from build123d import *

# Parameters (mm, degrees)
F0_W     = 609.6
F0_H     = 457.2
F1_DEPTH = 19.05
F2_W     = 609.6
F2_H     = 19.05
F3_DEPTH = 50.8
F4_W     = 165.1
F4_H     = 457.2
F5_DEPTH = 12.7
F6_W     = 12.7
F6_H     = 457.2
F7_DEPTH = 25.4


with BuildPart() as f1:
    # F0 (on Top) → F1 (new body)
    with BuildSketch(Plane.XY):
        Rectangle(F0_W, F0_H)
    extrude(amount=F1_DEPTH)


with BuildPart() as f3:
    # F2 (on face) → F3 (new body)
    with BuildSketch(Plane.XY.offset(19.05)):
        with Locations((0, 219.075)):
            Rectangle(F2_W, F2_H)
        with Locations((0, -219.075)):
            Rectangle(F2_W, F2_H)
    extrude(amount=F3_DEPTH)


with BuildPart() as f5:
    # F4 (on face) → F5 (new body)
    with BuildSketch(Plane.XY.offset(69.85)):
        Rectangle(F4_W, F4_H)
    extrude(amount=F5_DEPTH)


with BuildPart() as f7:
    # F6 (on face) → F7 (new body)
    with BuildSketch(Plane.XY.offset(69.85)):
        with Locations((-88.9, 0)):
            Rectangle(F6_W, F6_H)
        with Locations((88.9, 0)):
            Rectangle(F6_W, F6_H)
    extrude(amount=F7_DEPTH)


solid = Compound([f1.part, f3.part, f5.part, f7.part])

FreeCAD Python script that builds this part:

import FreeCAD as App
import Part
import Sketcher

V = App.Vector
Q = App.Units.Quantity

doc = App.newDocument("Part")
body = doc.addObject("PartDesign::Body", "Body")

# Sketch on XY plane
sketch1 = body.newObject("Sketcher::SketchObject", "Sketch")
sketch1.AttachmentSupport = (doc.getObject("XY_Plane"), [""])
sketch1.MapMode = "FlatFace"
sketch1.addGeometry([
    Part.LineSegment(V(-305, 229, 0), V(-305, -229, 0)),
    Part.LineSegment(V(-305, -229, 0), V(305, -229, 0)),
    Part.LineSegment(V(305, -229, 0), V(305, 229, 0)),
    Part.LineSegment(V(305, 229, 0), V(-305, 229, 0)),
], False)
sketch1.addConstraint([
    Sketcher.Constraint("Coincident", 0, 2, 1, 1),
    Sketcher.Constraint("Coincident", 1, 2, 2, 1),
    Sketcher.Constraint("Coincident", 2, 2, 3, 1),
    Sketcher.Constraint("Coincident", 3, 2, 0, 1),
    Sketcher.Constraint("Vertical", 0),
    Sketcher.Constraint("Horizontal", 1),
    Sketcher.Constraint("Vertical", 2),
    Sketcher.Constraint("Horizontal", 3),
    Sketcher.Constraint("Symmetric", 0, 2, 2, 2, -1, 1),
    Sketcher.Constraint("DistanceX", 1, 1, 1, 2, Q("24 in")),
    Sketcher.Constraint("DistanceY", 0, 2, 0, 1, Q("18 in")),
])
pad1 = body.newObject("PartDesign::Pad", "Pad")
pad1.Profile = sketch1
pad1.Length = Q("0.75 in")
body2 = doc.addObject("PartDesign::Body", "Body001")
body2.AllowCompound = True

# Sketch on XY plane
sketch2 = body2.newObject("Sketcher::SketchObject", "Sketch001")
sketch2.AttachmentSupport = (doc.getObject("XY_Plane001"), [""])
sketch2.MapMode = "FlatFace"
sketch2.AttachmentOffset = App.Placement(V(0, 0, 0.75 * 25.4), App.Rotation())
sketch2.addGeometry([
    Part.LineSegment(V(-305, 229, 0), V(-305, 210, 0)),  # 0
    Part.LineSegment(V(-305, 210, 0), V(305, 210, 0)),  # 1
    Part.LineSegment(V(305, 210, 0), V(305, 229, 0)),  # 2
    Part.LineSegment(V(305, 229, 0), V(-305, 229, 0)),  # 3
    Part.LineSegment(V(-305, -210, 0), V(-305, -229, 0)),  # 4
    Part.LineSegment(V(-305, -229, 0), V(305, -229, 0)),  # 5
    Part.LineSegment(V(305, -229, 0), V(305, -210, 0)),  # 6
    Part.LineSegment(V(305, -210, 0), V(-305, -210, 0)),  # 7
], False)
sketch2.addConstraint([
    Sketcher.Constraint("Coincident", 0, 2, 1, 1),
    Sketcher.Constraint("Coincident", 1, 2, 2, 1),
    Sketcher.Constraint("Coincident", 2, 2, 3, 1),
    Sketcher.Constraint("Coincident", 3, 2, 0, 1),
    Sketcher.Constraint("Coincident", 4, 2, 5, 1),
    Sketcher.Constraint("Coincident", 5, 2, 6, 1),
    Sketcher.Constraint("Coincident", 6, 2, 7, 1),
    Sketcher.Constraint("Coincident", 7, 2, 4, 1),
    Sketcher.Constraint("Vertical", 0),
    Sketcher.Constraint("Horizontal", 1),
    Sketcher.Constraint("Vertical", 2),
    Sketcher.Constraint("Horizontal", 3),
    Sketcher.Constraint("Vertical", 4),
    Sketcher.Constraint("Horizontal", 5),
    Sketcher.Constraint("Vertical", 6),
    Sketcher.Constraint("Horizontal", 7),
    Sketcher.Constraint("Symmetric", 2, 2, 4, 2, -1, 1),
    Sketcher.Constraint("Symmetric", 0, 2, 6, 2, -1, 1),
    Sketcher.Constraint("Vertical", 3, 2, 4, 2),
    Sketcher.Constraint("DistanceX", 1, 1, 1, 2, Q("24 in")),
    Sketcher.Constraint("DistanceY", -1, 1, 2, 2, Q("9 in")),
    Sketcher.Constraint("DistanceY", 0, 2, 0, 1, Q("0.75 in")),
])
pad2 = body2.newObject("PartDesign::Pad", "Pad001")
pad2.Profile = sketch2
pad2.Length = Q("2 in")
body3 = doc.addObject("PartDesign::Body", "Body002")

# Sketch on XY plane
sketch3 = body3.newObject("Sketcher::SketchObject", "Sketch002")
sketch3.AttachmentSupport = (doc.getObject("XY_Plane002"), [""])
sketch3.MapMode = "FlatFace"
sketch3.AttachmentOffset = App.Placement(V(0, 0, 2.75 * 25.4), App.Rotation())
sketch3.addGeometry([
    Part.LineSegment(V(-83, 229, 0), V(-83, -229, 0)),
    Part.LineSegment(V(-83, -229, 0), V(83, -229, 0)),
    Part.LineSegment(V(83, -229, 0), V(83, 229, 0)),
    Part.LineSegment(V(83, 229, 0), V(-83, 229, 0)),
], False)
sketch3.addConstraint([
    Sketcher.Constraint("Coincident", 0, 2, 1, 1),
    Sketcher.Constraint("Coincident", 1, 2, 2, 1),
    Sketcher.Constraint("Coincident", 2, 2, 3, 1),
    Sketcher.Constraint("Coincident", 3, 2, 0, 1),
    Sketcher.Constraint("Vertical", 0),
    Sketcher.Constraint("Horizontal", 1),
    Sketcher.Constraint("Vertical", 2),
    Sketcher.Constraint("Horizontal", 3),
    Sketcher.Constraint("Symmetric", 0, 2, 2, 2, -1, 1),
    Sketcher.Constraint("DistanceY", 0, 2, 0, 1, Q("18 in")),
    Sketcher.Constraint("DistanceX", 1, 1, 1, 2, Q("6.5 in")),
])
pad3 = body3.newObject("PartDesign::Pad", "Pad002")
pad3.Profile = sketch3
pad3.Length = Q("0.5 in")
body4 = doc.addObject("PartDesign::Body", "Body003")
body4.AllowCompound = True

# Sketch on XY plane
sketch4 = body4.newObject("Sketcher::SketchObject", "Sketch003")
sketch4.AttachmentSupport = (doc.getObject("XY_Plane003"), [""])
sketch4.MapMode = "FlatFace"
sketch4.AttachmentOffset = App.Placement(V(0, 0, 2.75 * 25.4), App.Rotation())
sketch4.addGeometry([
    Part.LineSegment(V(-95, 229, 0), V(-95, -229, 0)),  # 0
    Part.LineSegment(V(-95, -229, 0), V(-83, -229, 0)),  # 1
    Part.LineSegment(V(-83, -229, 0), V(-83, 229, 0)),  # 2
    Part.LineSegment(V(-83, 229, 0), V(-95, 229, 0)),  # 3
    Part.LineSegment(V(83, 229, 0), V(83, -229, 0)),  # 4
    Part.LineSegment(V(83, -229, 0), V(95, -229, 0)),  # 5
    Part.LineSegment(V(95, -229, 0), V(95, 229, 0)),  # 6
    Part.LineSegment(V(95, 229, 0), V(83, 229, 0)),  # 7
], False)
sketch4.addConstraint([
    Sketcher.Constraint("Coincident", 0, 2, 1, 1),
    Sketcher.Constraint("Coincident", 1, 2, 2, 1),
    Sketcher.Constraint("Coincident", 2, 2, 3, 1),
    Sketcher.Constraint("Coincident", 3, 2, 0, 1),
    Sketcher.Constraint("Coincident", 4, 2, 5, 1),
    Sketcher.Constraint("Coincident", 5, 2, 6, 1),
    Sketcher.Constraint("Coincident", 6, 2, 7, 1),
    Sketcher.Constraint("Coincident", 7, 2, 4, 1),
    Sketcher.Constraint("Vertical", 0),
    Sketcher.Constraint("Horizontal", 1),
    Sketcher.Constraint("Vertical", 2),
    Sketcher.Constraint("Horizontal", 3),
    Sketcher.Constraint("Vertical", 4),
    Sketcher.Constraint("Horizontal", 5),
    Sketcher.Constraint("Vertical", 6),
    Sketcher.Constraint("Horizontal", 7),
    Sketcher.Constraint("Symmetric", 2, 2, 4, 2, -1, 1),
    Sketcher.Constraint("Symmetric", 0, 2, 6, 2, -1, 1),
    Sketcher.Constraint("Horizontal", 1, 2, 4, 2),
    Sketcher.Constraint("DistanceY", 0, 2, 0, 1, Q("18 in")),
    Sketcher.Constraint("DistanceX", 1, 1, 1, 2, Q("0.5 in")),
    Sketcher.Constraint("DistanceX", 0, 2, 4, 2, Q("7 in")),
])
pad4 = body4.newObject("PartDesign::Pad", "Pad003")
pad4.Profile = sketch4
pad4.Length = Q("1 in")

doc.recompute()
